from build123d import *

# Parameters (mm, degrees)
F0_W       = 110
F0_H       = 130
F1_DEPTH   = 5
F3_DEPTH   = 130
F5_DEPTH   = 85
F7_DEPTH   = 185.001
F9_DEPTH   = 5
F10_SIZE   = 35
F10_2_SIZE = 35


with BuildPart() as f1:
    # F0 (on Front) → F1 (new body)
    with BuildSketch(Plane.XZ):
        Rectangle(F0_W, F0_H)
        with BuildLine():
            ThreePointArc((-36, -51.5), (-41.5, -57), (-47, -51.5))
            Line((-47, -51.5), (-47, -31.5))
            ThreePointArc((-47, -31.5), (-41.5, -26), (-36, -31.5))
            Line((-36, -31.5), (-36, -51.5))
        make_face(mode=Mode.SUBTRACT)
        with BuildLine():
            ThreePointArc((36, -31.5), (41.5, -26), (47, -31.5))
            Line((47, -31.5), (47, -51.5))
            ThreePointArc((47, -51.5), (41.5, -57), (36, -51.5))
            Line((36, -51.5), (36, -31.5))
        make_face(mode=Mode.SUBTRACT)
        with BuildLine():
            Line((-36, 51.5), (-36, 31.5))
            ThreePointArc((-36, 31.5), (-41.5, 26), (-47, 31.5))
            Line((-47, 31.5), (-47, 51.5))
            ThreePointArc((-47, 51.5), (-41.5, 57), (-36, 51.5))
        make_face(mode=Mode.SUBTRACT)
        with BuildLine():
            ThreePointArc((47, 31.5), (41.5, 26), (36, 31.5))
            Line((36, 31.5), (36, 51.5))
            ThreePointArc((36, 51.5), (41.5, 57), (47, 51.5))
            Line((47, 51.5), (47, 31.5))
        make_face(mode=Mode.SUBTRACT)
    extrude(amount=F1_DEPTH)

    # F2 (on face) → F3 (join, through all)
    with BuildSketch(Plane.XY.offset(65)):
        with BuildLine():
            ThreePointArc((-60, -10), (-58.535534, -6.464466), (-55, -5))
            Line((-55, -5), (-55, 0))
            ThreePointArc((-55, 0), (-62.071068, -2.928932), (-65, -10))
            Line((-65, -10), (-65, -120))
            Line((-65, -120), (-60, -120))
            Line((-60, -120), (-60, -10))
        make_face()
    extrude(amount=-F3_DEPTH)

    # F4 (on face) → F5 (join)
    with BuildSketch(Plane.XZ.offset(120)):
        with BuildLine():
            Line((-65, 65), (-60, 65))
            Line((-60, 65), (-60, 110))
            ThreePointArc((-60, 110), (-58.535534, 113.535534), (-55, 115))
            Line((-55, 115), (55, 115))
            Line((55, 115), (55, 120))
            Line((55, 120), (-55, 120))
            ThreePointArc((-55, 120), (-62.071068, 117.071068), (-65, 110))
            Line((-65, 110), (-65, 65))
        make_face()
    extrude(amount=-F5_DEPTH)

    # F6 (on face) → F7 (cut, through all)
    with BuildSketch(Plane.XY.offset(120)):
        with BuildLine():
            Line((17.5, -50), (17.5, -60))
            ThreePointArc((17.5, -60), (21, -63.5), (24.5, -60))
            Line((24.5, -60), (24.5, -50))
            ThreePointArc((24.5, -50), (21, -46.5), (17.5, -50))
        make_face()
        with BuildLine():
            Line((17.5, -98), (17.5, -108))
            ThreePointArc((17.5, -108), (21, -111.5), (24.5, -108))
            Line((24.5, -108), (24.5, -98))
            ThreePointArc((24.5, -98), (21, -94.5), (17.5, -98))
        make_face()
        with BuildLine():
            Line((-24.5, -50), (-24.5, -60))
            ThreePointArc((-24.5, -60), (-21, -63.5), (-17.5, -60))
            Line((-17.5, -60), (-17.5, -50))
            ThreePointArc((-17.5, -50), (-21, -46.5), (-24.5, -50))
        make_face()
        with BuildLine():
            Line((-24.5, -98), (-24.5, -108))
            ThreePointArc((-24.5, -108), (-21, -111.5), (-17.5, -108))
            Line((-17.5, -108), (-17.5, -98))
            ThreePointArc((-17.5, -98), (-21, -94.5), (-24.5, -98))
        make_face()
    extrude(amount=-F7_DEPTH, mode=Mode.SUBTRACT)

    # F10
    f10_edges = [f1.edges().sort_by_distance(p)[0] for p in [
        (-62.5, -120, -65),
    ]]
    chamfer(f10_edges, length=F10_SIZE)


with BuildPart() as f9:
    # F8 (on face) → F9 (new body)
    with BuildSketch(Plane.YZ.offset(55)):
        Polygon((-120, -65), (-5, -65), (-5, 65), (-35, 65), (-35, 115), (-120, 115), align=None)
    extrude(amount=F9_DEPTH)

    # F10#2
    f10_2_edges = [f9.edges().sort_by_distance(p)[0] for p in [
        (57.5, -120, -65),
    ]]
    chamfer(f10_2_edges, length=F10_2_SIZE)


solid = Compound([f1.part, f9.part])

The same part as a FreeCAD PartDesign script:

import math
import FreeCAD as App
import Part
import Sketcher

V = App.Vector
Q = App.Units.Quantity


def edges_at(feature, points):
    """Names of the edges that pass closest to the given points."""
    edges = feature.Shape.Edges
    near = lambda p: min(range(len(edges)), key=lambda i: edges[i].distToShape(Part.Vertex(*p))[0])
    return sorted({f"Edge{near(p) + 1}" for p in points})

doc = App.newDocument("Part")
body = doc.addObject("PartDesign::Body", "Body")

sketch1 = body.newObject("Sketcher::SketchObject", "Sketch")
sketch1.AttachmentSupport = (doc.getObject("XZ_Plane"), [""])
sketch1.MapMode = "FlatFace"
sketch1.addGeometry(Part.LineSegment(V(-55, 65, 0), V(-55, -65, 0)), False)
sketch1.addGeometry(Part.LineSegment(V(-55, -65, 0), V(55, -65, 0)), False)
sketch1.addGeometry(Part.LineSegment(V(55, -65, 0), V(55, 65, 0)), False)
sketch1.addGeometry(Part.LineSegment(V(55, 65, 0), V(-55, 65, 0)), False)
sketch1.addGeometry(Part.LineSegment(V(-36, -32, 0), V(-36, -52, 0)), False)
sketch1.addGeometry(Part.ArcOfCircle(Part.Circle(V(-42, -52, 0), V(0, 0, 1), 6), math.radians(180), math.radians(360)), False)
sketch1.addGeometry(Part.LineSegment(V(-47, -52, 0), V(-47, -32, 0)), False)
sketch1.addGeometry(Part.ArcOfCircle(Part.Circle(V(-42, -32, 0), V(0, 0, 1), 6), math.radians(0), math.radians(180)), False)
sketch1.addGeometry(Part.LineSegment(V(36, -52, 0), V(36, -32, 0)), False)
sketch1.addGeometry(Part.ArcOfCircle(Part.Circle(V(42, -32, 0), V(0, 0, 1), 6), math.radians(0), math.radians(180)), False)
sketch1.addGeometry(Part.LineSegment(V(47, -32, 0), V(47, -52, 0)), False)
sketch1.addGeometry(Part.ArcOfCircle(Part.Circle(V(42, -52, 0), V(0, 0, 1), 6), math.radians(180), math.radians(360)), False)
sketch1.addGeometry(Part.ArcOfCircle(Part.Circle(V(-42, 52, 0), V(0, 0, 1), 6), math.radians(0), math.radians(180)), False)
sketch1.addGeometry(Part.LineSegment(V(-36, 52, 0), V(-36, 32, 0)), False)
sketch1.addGeometry(Part.ArcOfCircle(Part.Circle(V(-42, 32, 0), V(0, 0, 1), 6), math.radians(180), math.radians(360)), False)
sketch1.addGeometry(Part.LineSegment(V(-47, 32, 0), V(-47, 52, 0)), False)
sketch1.addGeometry(Part.LineSegment(V(47, 52, 0), V(47, 32, 0)), False)
sketch1.addGeometry(Part.ArcOfCircle(Part.Circle(V(42, 32, 0), V(0, 0, 1), 6), math.radians(180), math.radians(360)), False)
sketch1.addGeometry(Part.LineSegment(V(36, 32, 0), V(36, 52, 0)), False)
sketch1.addGeometry(Part.ArcOfCircle(Part.Circle(V(42, 52, 0), V(0, 0, 1), 6), math.radians(0), math.radians(180)), False)
sketch1.addConstraint(Sketcher.Constraint("Coincident", 0, 2, 1, 1))
sketch1.addConstraint(Sketcher.Constraint("Coincident", 1, 2, 2, 1))
sketch1.addConstraint(Sketcher.Constraint("Coincident", 2, 2, 3, 1))
sketch1.addConstraint(Sketcher.Constraint("Coincident", 3, 2, 0, 1))
sketch1.addConstraint(Sketcher.Constraint("Tangent", 4, 2, 5, 2))
sketch1.addConstraint(Sketcher.Constraint("Tangent", 5, 1, 6, 1))
sketch1.addConstraint(Sketcher.Constraint("Tangent", 6, 2, 7, 2))
sketch1.addConstraint(Sketcher.Constraint("Tangent", 7, 1, 4, 1))
sketch1.addConstraint(Sketcher.Constraint("Tangent", 8, 2, 9, 2))
sketch1.addConstraint(Sketcher.Constraint("Tangent", 9, 1, 10, 1))
sketch1.addConstraint(Sketcher.Constraint("Tangent", 10, 2, 11, 2))
sketch1.addConstraint(Sketcher.Constraint("Tangent", 11, 1, 8, 1))
sketch1.addConstraint(Sketcher.Constraint("Tangent", 12, 1, 13, 1))
sketch1.addConstraint(Sketcher.Constraint("Tangent", 13, 2, 14, 2))
sketch1.addConstraint(Sketcher.Constraint("Tangent", 14, 1, 15, 1))
sketch1.addConstraint(Sketcher.Constraint("Tangent", 15, 2, 12, 2))
sketch1.addConstraint(Sketcher.Constraint("Tangent", 16, 2, 17, 2))
sketch1.addConstraint(Sketcher.Constraint("Tangent", 17, 1, 18, 1))
sketch1.addConstraint(Sketcher.Constraint("Tangent", 18, 2, 19, 2))
sketch1.addConstraint(Sketcher.Constraint("Tangent", 19, 1, 16, 1))
sketch1.addConstraint(Sketcher.Constraint("Vertical", 0))
sketch1.addConstraint(Sketcher.Constraint("Horizontal", 1))
sketch1.addConstraint(Sketcher.Constraint("Vertical", 2))
sketch1.addConstraint(Sketcher.Constraint("Horizontal", 3))
sketch1.addConstraint(Sketcher.Constraint("Vertical", 4))
sketch1.addConstraint(Sketcher.Constraint("Vertical", 6))
sketch1.addConstraint(Sketcher.Constraint("Vertical", 8))
sketch1.addConstraint(Sketcher.Constraint("Vertical", 10))
sketch1.addConstraint(Sketcher.Constraint("Vertical", 13))
sketch1.addConstraint(Sketcher.Constraint("Vertical", 15))
sketch1.addConstraint(Sketcher.Constraint("Vertical", 16))
sketch1.addConstraint(Sketcher.Constraint("Vertical", 18))
sketch1.addConstraint(Sketcher.Constraint("Equal", 7, 9))
sketch1.addConstraint(Sketcher.Constraint("Equal", 11, 12))
sketch1.addConstraint(Sketcher.Constraint("Equal", 14, 17))
sketch1.addConstraint(Sketcher.Constraint("Symmetric", 11, 3, 12, 3, -1, 1))
sketch1.addConstraint(Sketcher.Constraint("Symmetric", 7, 3, 17, 3, -1, 1))
sketch1.addConstraint(Sketcher.Constraint("Symmetric", 0, 2, 2, 2, -1, 1))
sketch1.addConstraint(Sketcher.Constraint("Symmetric", 7, 3, 9, 3, -2))
sketch1.addConstraint(Sketcher.Constraint("Horizontal", 5, 3, 11, 3))
sketch1.addConstraint(Sketcher.Constraint("Horizontal", 14, 3, 17, 3))
sketch1.addConstraint(Sketcher.Constraint("Horizontal", 12, 3, 19, 3))
sketch1.addConstraint(Sketcher.Constraint("Radius", 5, Q("5.5 mm")))
sketch1.addConstraint(Sketcher.Constraint("DistanceX", 1, 1, 1, 2, Q("110 mm")))
sketch1.addConstraint(Sketcher.Constraint("DistanceY", 0, 2, 0, 1, Q("130 mm")))
sketch1.addConstraint(Sketcher.Constraint("DistanceY", 4, 2, 4, 1, Q("20 mm")))
sketch1.addConstraint(Sketcher.Constraint("DistanceX", 4, 2, -1, 1, Q("36 mm")))
sketch1.addConstraint(Sketcher.Constraint("DistanceY", 7, 3, 12, 3, Q("83 mm")))
pad1 = body.newObject("PartDesign::Pad", "Pad")
pad1.Profile = sketch1
pad1.Length = 5

sketch2 = body.newObject("Sketcher::SketchObject", "Sketch001")
sketch2.AttachmentSupport = (doc.getObject("XY_Plane"), [""])
sketch2.MapMode = "FlatFace"
sketch2.AttachmentOffset = App.Placement(V(0, 0, 65), App.Rotation())
sketch2.addGeometry(Part.ArcOfCircle(Part.Circle(V(-55, -10, 0), V(0, 0, 1), 5), math.radians(90), math.radians(180)), False)
sketch2.addGeometry(Part.LineSegment(V(-55, -5, 0), V(-55, 0, 0)), False)
sketch2.addGeometry(Part.ArcOfCircle(Part.Circle(V(-55, -10, 0), V(0, 0, 1), 10), math.radians(90), math.radians(180)), False)
sketch2.addGeometry(Part.LineSegment(V(-65, -10, 0), V(-65, -120, 0)), False)
sketch2.addGeometry(Part.LineSegment(V(-65, -120, 0), V(-60, -120, 0)), False)
sketch2.addGeometry(Part.LineSegment(V(-60, -120, 0), V(-60, -10, 0)), False)
sketch2.addConstraint(Sketcher.Constraint("Coincident", 0, 1, 1, 1))
sketch2.addConstraint(Sketcher.Constraint("Coincident", 1, 2, 2, 1))
sketch2.addConstraint(Sketcher.Constraint("Tangent", 2, 2, 3, 1))
sketch2.addConstraint(Sketcher.Constraint("Coincident", 3, 2, 4, 1))
sketch2.addConstraint(Sketcher.Constraint("Coincident", 4, 2, 5, 1))
sketch2.addConstraint(Sketcher.Constraint("Tangent", 5, 2, 0, 2))
sketch2.addConstraint(Sketcher.Constraint("Vertical", 1))
sketch2.addConstraint(Sketcher.Constraint("Vertical", 3))
sketch2.addConstraint(Sketcher.Constraint("Horizontal", 4))
sketch2.addConstraint(Sketcher.Constraint("Vertical", 5))
sketch2.addConstraint(Sketcher.Constraint("Coincident", 2, 3, 0, 3))
sketch2.addConstraint(Sketcher.Constraint("PointOnObject", 1, 2, -1))
sketch2.addConstraint(Sketcher.Constraint("Vertical", 2, 3, 0, 1))
sketch2.addConstraint(Sketcher.Constraint("Radius", 0, Q("5 mm")))
sketch2.addConstraint(Sketcher.Constraint("Radius", 2, Q("9.999999 mm")))
sketch2.addConstraint(Sketcher.Constraint("DistanceY", 3, 2, 3, 1, Q("110 mm")))
sketch2.addConstraint(Sketcher.Constraint("DistanceX", 0, 3, -1, 1, Q("55 mm")))
pad2 = body.newObject("PartDesign::Pad", "Pad001")
pad2.Profile = sketch2
pad2.Length = 130
pad2.Reversed = True

sketch3 = body.newObject("Sketcher::SketchObject", "Sketch002")
sketch3.AttachmentSupport = (doc.getObject("XZ_Plane"), [""])
sketch3.MapMode = "FlatFace"
sketch3.AttachmentOffset = App.Placement(V(0, 0, 120), App.Rotation())
sketch3.addGeometry(Part.LineSegment(V(-65, 65, 0), V(-60, 65, 0)), False)
sketch3.addGeometry(Part.LineSegment(V(-60, 65, 0), V(-60, 110, 0)), False)
sketch3.addGeometry(Part.ArcOfCircle(Part.Circle(V(-55, 110, 0), V(0, 0, 1), 5), math.radians(90), math.radians(180)), False)
sketch3.addGeometry(Part.LineSegment(V(-55, 115, 0), V(55, 115, 0)), False)
sketch3.addGeometry(Part.LineSegment(V(55, 115, 0), V(55, 120, 0)), False)
sketch3.addGeometry(Part.LineSegment(V(55, 120, 0), V(-55, 120, 0)), False)
sketch3.addGeometry(Part.ArcOfCircle(Part.Circle(V(-55, 110, 0), V(0, 0, 1), 10), math.radians(90), math.radians(180)), False)
sketch3.addGeometry(Part.LineSegment(V(-65, 110, 0), V(-65, 65, 0)), False)
sketch3.addConstraint(Sketcher.Constraint("Coincident", 0, 2, 1, 1))
sketch3.addConstraint(Sketcher.Constraint("Tangent", 1, 2, 2, 2))
sketch3.addConstraint(Sketcher.Constraint("Tangent", 2, 1, 3, 1))
sketch3.addConstraint(Sketcher.Constraint("Coincident", 3, 2, 4, 1))
sketch3.addConstraint(Sketcher.Constraint("Coincident", 4, 2, 5, 1))
sketch3.addConstraint(Sketcher.Constraint("Tangent", 5, 2, 6, 1))
sketch3.addConstraint(Sketcher.Constraint("Tangent", 6, 2, 7, 1))
sketch3.addConstraint(Sketcher.Constraint("Coincident", 7, 2, 0, 1))
sketch3.addConstraint(Sketcher.Constraint("Horizontal", 0))
sketch3.addConstraint(Sketcher.Constraint("Vertical", 1))
sketch3.addConstraint(Sketcher.Constraint("Horizontal", 3))
sketch3.addConstraint(Sketcher.Constraint("Vertical", 4))
sketch3.addConstraint(Sketcher.Constraint("Horizontal", 5))
sketch3.addConstraint(Sketcher.Constraint("Vertical", 7))
sketch3.addConstraint(Sketcher.Constraint("Coincident", 6, 3, 2, 3))
sketch3.addConstraint(Sketcher.Constraint("Radius", 2, Q("5 mm")))
sketch3.addConstraint(Sketcher.Constraint("Radius", 6, Q("9.999999 mm")))
sketch3.addConstraint(Sketcher.Constraint("DistanceX", 3, 1, 3, 2, Q("110 mm")))
sketch3.addConstraint(Sketcher.Constraint("DistanceY", 1, 1, 1, 2, Q("45 mm")))
sketch3.addConstraint(Sketcher.Constraint("DistanceX", 2, 3, -1, 1, Q("55 mm")))
sketch3.addConstraint(Sketcher.Constraint("DistanceY", -1, 1, 2, 3, Q("110 mm")))
pad3 = body.newObject("PartDesign::Pad", "Pad002")
pad3.Profile = sketch3
pad3.Length = 85
pad3.Reversed = True

sketch4 = body.newObject("Sketcher::SketchObject", "Sketch003")
sketch4.AttachmentSupport = (doc.getObject("XY_Plane"), [""])
sketch4.MapMode = "FlatFace"
sketch4.AttachmentOffset = App.Placement(V(0, 0, 120), App.Rotation())
sketch4.addGeometry(Part.LineSegment(V(17.5, -50, 0), V(17.5, -60, 0)), False)
sketch4.addGeometry(Part.ArcOfCircle(Part.Circle(V(21, -60, 0), V(0, 0, 1), 3.5), math.radians(180), math.radians(360)), False)
sketch4.addGeometry(Part.LineSegment(V(24.5, -60, 0), V(24.5, -50, 0)), False)
sketch4.addGeometry(Part.ArcOfCircle(Part.Circle(V(21, -50, 0), V(0, 0, 1), 3.5), math.radians(0), math.radians(180)), False)
sketch4.addGeometry(Part.LineSegment(V(17.5, -98, 0), V(17.5, -108, 0)), False)
sketch4.addGeometry(Part.ArcOfCircle(Part.Circle(V(21, -108, 0), V(0, 0, 1), 3.5), math.radians(180), math.radians(360)), False)
sketch4.addGeometry(Part.LineSegment(V(24.5, -108, 0), V(24.5, -98, 0)), False)
sketch4.addGeometry(Part.ArcOfCircle(Part.Circle(V(21, -98, 0), V(0, 0, 1), 3.5), math.radians(0), math.radians(180)), False)
sketch4.addGeometry(Part.LineSegment(V(-24.5, -50, 0), V(-24.5, -60, 0)), False)
sketch4.addGeometry(Part.ArcOfCircle(Part.Circle(V(-21, -60, 0), V(0, 0, 1), 3.5), math.radians(180), math.radians(360)), False)
sketch4.addGeometry(Part.LineSegment(V(-17.5, -60, 0), V(-17.5, -50, 0)), False)
sketch4.addGeometry(Part.ArcOfCircle(Part.Circle(V(-21, -50, 0), V(0, 0, 1), 3.5), math.radians(0), math.radians(180)), False)
sketch4.addGeometry(Part.LineSegment(V(-24.5, -98, 0), V(-24.5, -108, 0)), False)
sketch4.addGeometry(Part.ArcOfCircle(Part.Circle(V(-21, -108, 0), V(0, 0, 1), 3.5), math.radians(180), math.radians(360)), False)
sketch4.addGeometry(Part.LineSegment(V(-17.5, -108, 0), V(-17.5, -98, 0)), False)
sketch4.addGeometry(Part.ArcOfCircle(Part.Circle(V(-21, -98, 0), V(0, 0, 1), 3.5), math.radians(0), math.radians(180)), False)
sketch4.addConstraint(Sketcher.Constraint("Tangent", 0, 2, 1, 1))
sketch4.addConstraint(Sketcher.Constraint("Tangent", 1, 2, 2, 1))
sketch4.addConstraint(Sketcher.Constraint("Tangent", 2, 2, 3, 1))
sketch4.addConstraint(Sketcher.Constraint("Tangent", 3, 2, 0, 1))
sketch4.addConstraint(Sketcher.Constraint("Tangent", 4, 2, 5, 1))
sketch4.addConstraint(Sketcher.Constraint("Tangent", 5, 2, 6, 1))
sketch4.addConstraint(Sketcher.Constraint("Tangent", 6, 2, 7, 1))
sketch4.addConstraint(Sketcher.Constraint("Tangent", 7, 2, 4, 1))
sketch4.addConstraint(Sketcher.Constraint("Tangent", 8, 2, 9, 1))
sketch4.addConstraint(Sketcher.Constraint("Tangent", 9, 2, 10, 1))
sketch4.addConstraint(Sketcher.Constraint("Tangent", 10, 2, 11, 1))
sketch4.addConstraint(Sketcher.Constraint("Tangent", 11, 2, 8, 1))
sketch4.addConstraint(Sketcher.Constraint("Tangent", 12, 2, 13, 1))
sketch4.addConstraint(Sketcher.Constraint("Tangent", 13, 2, 14, 1))
sketch4.addConstraint(Sketcher.Constraint("Tangent", 14, 2, 15, 1))
sketch4.addConstraint(Sketcher.Constraint("Tangent", 15, 2, 12, 1))
sketch4.addConstraint(Sketcher.Constraint("Vertical", 0))
sketch4.addConstraint(Sketcher.Constraint("Vertical", 2))
sketch4.addConstraint(Sketcher.Constraint("Vertical", 4))
sketch4.addConstraint(Sketcher.Constraint("Vertical", 6))
sketch4.addConstraint(Sketcher.Constraint("Vertical", 8))
sketch4.addConstraint(Sketcher.Constraint("Vertical", 10))
sketch4.addConstraint(Sketcher.Constraint("Vertical", 12))
sketch4.addConstraint(Sketcher.Constraint("Vertical", 14))
sketch4.addConstraint(Sketcher.Constraint("Equal", 3, 5))
sketch4.addConstraint(Sketcher.Constraint("Equal", 7, 9))
sketch4.addConstraint(Sketcher.Constraint("Equal", 11, 13))
sketch4.addConstraint(Sketcher.Constraint("Symmetric", 1, 3, 9, 3, -2))
sketch4.addConstraint(Sketcher.Constraint("Symmetric", 5, 3, 13, 3, -2))
sketch4.addConstraint(Sketcher.Constraint("Horizontal", 3, 3, 11, 3))
sketch4.addConstraint(Sketcher.Constraint("Horizontal", 7, 3, 15, 3))
sketch4.addConstraint(Sketcher.Constraint("Vertical", 3, 3, 5, 3))
sketch4.addConstraint(Sketcher.Constraint("Equal", 2, 4))
sketch4.addConstraint(Sketcher.Constraint("Radius", 1, Q("3.5 mm")))
sketch4.addConstraint(Sketcher.Constraint("DistanceY", 0, 2, 0, 1, Q("10 mm")))
sketch4.addConstraint(Sketcher.Constraint("DistanceX", -1, 1, 1, 3, Q("21 mm")))
sketch4.addConstraint(Sketcher.Constraint("DistanceY", 1, 3, -1, 1, Q("60 mm")))
sketch4.addConstraint(Sketcher.Constraint("DistanceY", 5, 3, -1, 1, Q("108 mm")))
pocket1 = body.newObject("PartDesign::Pocket", "Pocket")
pocket1.Profile = sketch4
pocket1.Type = "ThroughAll"
doc.recompute()

chamfer = body.newObject("PartDesign::Chamfer", "Chamfer")
chamfer.Base = (pocket1, edges_at(pocket1, [(-62.5, -120, -65)]))
chamfer.Size = 35
body2 = doc.addObject("PartDesign::Body", "Body001")

sketch5 = body2.newObject("Sketcher::SketchObject", "Sketch004")
sketch5.AttachmentSupport = (doc.getObject("YZ_Plane001"), [""])
sketch5.MapMode = "FlatFace"
sketch5.AttachmentOffset = App.Placement(V(0, 0, 55), App.Rotation())
sketch5.addGeometry(Part.LineSegment(V(-120, -65, 0), V(-5, -65, 0)), False)
sketch5.addGeometry(Part.LineSegment(V(-5, -65, 0), V(-5, 65, 0)), False)
sketch5.addGeometry(Part.LineSegment(V(-5, 65, 0), V(-35, 65, 0)), False)
sketch5.addGeometry(Part.LineSegment(V(-35, 65, 0), V(-35, 115, 0)), False)
sketch5.addGeometry(Part.LineSegment(V(-35, 115, 0), V(-120, 115, 0)), False)
sketch5.addGeometry(Part.LineSegment(V(-120, 115, 0), V(-120, -65, 0)), False)
sketch5.addConstraint(Sketcher.Constraint("Coincident", 0, 2, 1, 1))
sketch5.addConstraint(Sketcher.Constraint("Coincident", 1, 2, 2, 1))
sketch5.addConstraint(Sketcher.Constraint("Coincident", 2, 2, 3, 1))
sketch5.addConstraint(Sketcher.Constraint("Coincident", 3, 2, 4, 1))
sketch5.addConstraint(Sketcher.Constraint("Coincident", 4, 2, 5, 1))
sketch5.addConstraint(Sketcher.Constraint("Coincident", 5, 2, 0, 1))
sketch5.addConstraint(Sketcher.Constraint("Horizontal", 0))
sketch5.addConstraint(Sketcher.Constraint("Vertical", 1))
sketch5.addConstraint(Sketcher.Constraint("Horizontal", 2))
sketch5.addConstraint(Sketcher.Constraint("Vertical", 3))
sketch5.addConstraint(Sketcher.Constraint("Horizontal", 4))
sketch5.addConstraint(Sketcher.Constraint("Vertical", 5))
sketch5.addConstraint(Sketcher.Constraint("DistanceX", 0, 1, 0, 2, Q("115 mm")))
sketch5.addConstraint(Sketcher.Constraint("DistanceX", 2, 2, 2, 1, Q("30 mm")))
sketch5.addConstraint(Sketcher.Constraint("DistanceY", 1, 1, 1, 2, Q("130 mm")))
sketch5.addConstraint(Sketcher.Constraint("DistanceY", 3, 1, 3, 2, Q("50 mm")))
sketch5.addConstraint(Sketcher.Constraint("DistanceX", 0, 2, -1, 1, Q("5 mm")))
sketch5.addConstraint(Sketcher.Constraint("DistanceY", 0, 2, -1, 1, Q("65 mm")))
pad4 = body2.newObject("PartDesign::Pad", "Pad003")
pad4.Profile = sketch5
pad4.Length = 5
doc.recompute()

chamfer2 = body2.newObject("PartDesign::Chamfer", "Chamfer001")
chamfer2.Base = (pad4, edges_at(pad4, [(57.5, -120, -65)]))
chamfer2.Size = 35

doc.recompute()
